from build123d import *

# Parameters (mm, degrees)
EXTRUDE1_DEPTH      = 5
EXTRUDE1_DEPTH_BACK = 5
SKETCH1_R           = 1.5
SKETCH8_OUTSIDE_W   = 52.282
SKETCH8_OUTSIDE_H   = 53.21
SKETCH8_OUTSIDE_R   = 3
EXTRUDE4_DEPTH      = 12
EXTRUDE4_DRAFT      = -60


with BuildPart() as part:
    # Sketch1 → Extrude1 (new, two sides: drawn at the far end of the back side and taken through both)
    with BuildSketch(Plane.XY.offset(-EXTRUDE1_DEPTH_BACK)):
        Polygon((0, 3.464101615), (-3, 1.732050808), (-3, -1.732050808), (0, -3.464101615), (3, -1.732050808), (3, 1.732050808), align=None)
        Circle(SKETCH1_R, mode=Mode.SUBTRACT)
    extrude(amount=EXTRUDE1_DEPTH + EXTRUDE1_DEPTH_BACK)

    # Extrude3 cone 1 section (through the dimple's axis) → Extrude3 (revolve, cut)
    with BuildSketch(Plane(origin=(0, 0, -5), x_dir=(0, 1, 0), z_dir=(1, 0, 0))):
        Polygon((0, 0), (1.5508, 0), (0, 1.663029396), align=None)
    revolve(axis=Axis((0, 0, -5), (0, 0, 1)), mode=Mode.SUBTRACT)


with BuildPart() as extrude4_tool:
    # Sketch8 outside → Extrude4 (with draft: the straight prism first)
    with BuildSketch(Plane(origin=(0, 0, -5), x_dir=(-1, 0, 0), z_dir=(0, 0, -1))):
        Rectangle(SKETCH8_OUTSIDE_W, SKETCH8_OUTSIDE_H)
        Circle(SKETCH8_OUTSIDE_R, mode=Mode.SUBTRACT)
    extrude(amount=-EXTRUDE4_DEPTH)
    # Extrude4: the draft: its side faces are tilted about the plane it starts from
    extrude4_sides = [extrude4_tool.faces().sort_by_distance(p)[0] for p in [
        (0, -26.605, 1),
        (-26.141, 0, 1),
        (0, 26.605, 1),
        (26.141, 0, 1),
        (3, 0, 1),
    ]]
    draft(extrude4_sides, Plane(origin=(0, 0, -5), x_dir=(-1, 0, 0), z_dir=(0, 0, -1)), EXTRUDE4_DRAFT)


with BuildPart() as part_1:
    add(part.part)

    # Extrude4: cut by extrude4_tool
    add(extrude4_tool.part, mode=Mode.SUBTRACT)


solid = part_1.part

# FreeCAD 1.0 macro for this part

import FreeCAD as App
import Part
import Sketcher

V = App.Vector
Q = App.Units.Quantity


def faces_at(feature, points):
    """Names of the faces that lie closest to the given points."""
    faces = feature.Shape.Faces
    near = lambda p: min(range(len(faces)), key=lambda i: faces[i].distToShape(Part.Vertex(*p))[0])
    return sorted({f"Face{near(p) + 1}" for p in points})


def add_polygon(sketch, points):
    """Adds a closed chain of lines whose ends are joined by coincident constraints."""
    first, n = sketch.GeometryCount, len(points)
    for a, b in zip(points, points[1:] + points[:1]):
        sketch.addGeometry(Part.LineSegment(App.Vector(*a, 0), App.Vector(*b, 0)), False)
    for i in range(n):
        sketch.addConstraint(Sketcher.Constraint("Coincident", first + i, 2, first + (i + 1) % n, 1))

doc = App.newDocument("Part")
body = doc.addObject("PartDesign::Body", "Body")

sketch1 = body.newObject("Sketcher::SketchObject", "Sketch")
sketch1.AttachmentSupport = (doc.getObject("XY_Plane"), [""])
sketch1.MapMode = "FlatFace"
add_polygon(sketch1, [(0, 3.5), (-3, 1.7), (-3, -1.7), (0, -3.5), (3, -1.7), (3, 1.7)])
sketch1.addGeometry(Part.Circle(V(0, 0, 0), V(0, 0, 1), 1.5), False)
sketch1.addConstraint([
    Sketcher.Constraint("Vertical", 1),
    Sketcher.Constraint("Vertical", 4),
    Sketcher.Constraint("Coincident", 6, 3, -1, 1),
    Sketcher.Constraint("Symmetric", 0, 2, 3, 2, -1, 1),
    Sketcher.Constraint("Symmetric", 2, 2, 5, 2, -1, 1),
    Sketcher.Constraint("PointOnObject", 2, 2, -2),
    Sketcher.Constraint("Parallel", 2, 5),
    Sketcher.Constraint("Horizontal", 1, 2, 3, 2),
    Sketcher.Constraint("Diameter", 6, 3.0),
    Sketcher.Constraint("Angle", 0, Q("-150 deg")),
    Sketcher.Constraint("DistanceX", 0, 2, -1, 1, 3.0),
    Sketcher.Constraint("DistanceY", 1, 2, 1, 1, 3.464102),
])
pad1 = body.newObject("PartDesign::Pad", "Pad")
pad1.Profile = sketch1
pad1.Type = "TwoLengths"
pad1.Length = 5
pad1.Length2 = 5

sketch2 = body.newObject("Sketcher::SketchObject", "Sketch001")
sketch2.AttachmentSupport = (doc.getObject("YZ_Plane"), [""])
sketch2.MapMode = "FlatFace"
add_polygon(sketch2, [(0, -5), (1.6, -5), (0, -3.3)])
sketch2.addConstraint([
    Sketcher.Constraint("Horizontal", 0),
    Sketcher.Constraint("Vertical", 2),
    Sketcher.Constraint("PointOnObject", 1, 2, -2),
    Sketcher.Constraint("Angle", 1, Q("133 deg")),
    Sketcher.Constraint("DistanceY", 0, 2, -1, 1, 5.0),
    Sketcher.Constraint("DistanceX", 0, 1, 0, 2, 1.5508),
])
groove = body.newObject("PartDesign::Groove", "Groove")
groove.Profile = sketch2
groove.ReferenceAxis = (sketch2, ["V_Axis"])
groove.Angle = 360
body2 = doc.addObject("PartDesign::Body", "Body001")

sketch3 = body2.newObject("Sketcher::SketchObject", "Sketch002")
sketch3.AttachmentSupport = (doc.getObject("XY_Plane001"), [""])
sketch3.MapMode = "FlatFace"
sketch3.AttachmentOffset = App.Placement(V(0, 0, -5), App.Rotation())
add_polygon(sketch3, [(26.1, 26.6), (26.1, -26.6), (-26.1, -26.6), (-26.1, 26.6)])
sketch3.addGeometry(Part.Circle(V(0, 0, 0), V(0, 0, 1), 3), False)
sketch3.addConstraint([
    Sketcher.Constraint("Vertical", 0),
    Sketcher.Constraint("Horizontal", 1),
    Sketcher.Constraint("Vertical", 2),
    Sketcher.Constraint("Horizontal", 3),
    Sketcher.Constraint("Coincident", 4, 3, -1, 1),
    Sketcher.Constraint("Symmetric", 0, 2, 2, 2, -1, 1),
    Sketcher.Constraint("Diameter", 4, 6.0),
    Sketcher.Constraint("DistanceY", 0, 2, 0, 1, 53.21),
    Sketcher.Constraint("DistanceX", 1, 2, 1, 1, 52.282),
])
pad2 = body2.newObject("PartDesign::Pad", "Pad001")
pad2.Profile = sketch3
pad2.Length = 12
doc.recompute()

datumplane = body2.newObject("PartDesign::Plane", "DatumPlane")
datumplane.AttachmentSupport = (doc.getObject("XY_Plane001"), [""])
datumplane.MapMode = "FlatFace"
datumplane.AttachmentOffset = App.Placement(V(0, 0, -5), App.Rotation())
draft = body2.newObject("PartDesign::Draft", "Draft")
draft.Base = (pad2, faces_at(pad2, [
    (0, -26.605, 1),
    (-26.141, 0, 1),
    (0, 26.605, 1),
    (26.141, 0, 1),
    (3, 0, 1),
]))
draft.NeutralPlane = (datumplane, [""])
draft.Angle = 60
draft.Reversed = False
doc.recompute()

boolean = body.newObject("PartDesign::Boolean", "Boolean")
boolean.Type = "Cut"
boolean.addObjects([body2])

doc.recompute()
